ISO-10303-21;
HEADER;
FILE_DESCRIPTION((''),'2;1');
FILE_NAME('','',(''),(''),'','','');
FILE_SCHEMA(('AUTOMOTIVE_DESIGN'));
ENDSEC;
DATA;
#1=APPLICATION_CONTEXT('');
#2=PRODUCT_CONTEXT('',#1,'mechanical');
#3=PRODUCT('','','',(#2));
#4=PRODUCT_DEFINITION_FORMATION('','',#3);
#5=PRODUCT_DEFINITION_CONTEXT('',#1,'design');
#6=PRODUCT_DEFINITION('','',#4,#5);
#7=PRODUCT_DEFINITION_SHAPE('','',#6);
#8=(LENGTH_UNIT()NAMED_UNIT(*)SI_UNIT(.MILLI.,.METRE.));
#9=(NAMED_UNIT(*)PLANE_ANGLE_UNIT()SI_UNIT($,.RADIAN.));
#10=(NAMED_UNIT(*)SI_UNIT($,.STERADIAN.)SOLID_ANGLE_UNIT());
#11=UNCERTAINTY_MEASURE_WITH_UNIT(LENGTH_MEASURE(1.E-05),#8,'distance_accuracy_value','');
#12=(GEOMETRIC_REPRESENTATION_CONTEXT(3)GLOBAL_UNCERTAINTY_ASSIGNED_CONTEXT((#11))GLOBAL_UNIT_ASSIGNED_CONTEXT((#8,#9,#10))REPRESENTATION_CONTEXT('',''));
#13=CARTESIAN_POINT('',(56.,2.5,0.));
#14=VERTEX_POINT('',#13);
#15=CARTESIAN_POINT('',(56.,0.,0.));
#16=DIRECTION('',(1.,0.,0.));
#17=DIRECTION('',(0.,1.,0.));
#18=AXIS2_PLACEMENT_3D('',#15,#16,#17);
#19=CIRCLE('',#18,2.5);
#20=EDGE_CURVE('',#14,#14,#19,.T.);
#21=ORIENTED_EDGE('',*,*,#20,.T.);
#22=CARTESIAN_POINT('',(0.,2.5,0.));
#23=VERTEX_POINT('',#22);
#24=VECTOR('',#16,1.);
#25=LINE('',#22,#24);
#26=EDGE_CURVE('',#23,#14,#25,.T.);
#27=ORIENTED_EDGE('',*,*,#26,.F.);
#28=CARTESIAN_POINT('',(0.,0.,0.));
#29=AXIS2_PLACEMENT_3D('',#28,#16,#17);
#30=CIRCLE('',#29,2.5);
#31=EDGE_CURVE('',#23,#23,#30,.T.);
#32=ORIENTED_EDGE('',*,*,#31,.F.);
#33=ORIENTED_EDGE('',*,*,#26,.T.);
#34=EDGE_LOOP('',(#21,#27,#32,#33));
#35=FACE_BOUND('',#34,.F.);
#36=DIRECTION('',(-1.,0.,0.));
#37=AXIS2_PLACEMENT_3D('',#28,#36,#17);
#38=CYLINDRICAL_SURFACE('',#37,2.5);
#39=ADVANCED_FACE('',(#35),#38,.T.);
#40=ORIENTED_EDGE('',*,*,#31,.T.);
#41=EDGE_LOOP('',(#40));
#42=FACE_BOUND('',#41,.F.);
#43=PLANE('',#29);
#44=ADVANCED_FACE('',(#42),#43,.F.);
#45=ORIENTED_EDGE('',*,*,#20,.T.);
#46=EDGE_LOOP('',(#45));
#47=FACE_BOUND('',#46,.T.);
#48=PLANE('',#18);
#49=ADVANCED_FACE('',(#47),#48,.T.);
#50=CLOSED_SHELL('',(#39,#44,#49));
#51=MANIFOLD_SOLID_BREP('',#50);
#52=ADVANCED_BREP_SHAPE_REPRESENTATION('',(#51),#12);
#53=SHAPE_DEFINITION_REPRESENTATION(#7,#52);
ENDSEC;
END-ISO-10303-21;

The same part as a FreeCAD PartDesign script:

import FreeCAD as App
import Part
import Sketcher
Q = App.Units.Quantity

doc = App.newDocument("Part")
body = doc.addObject("PartDesign::Body", "Body")

# Sketch on YZ plane
sketch1 = body.newObject("Sketcher::SketchObject", "Sketch")
sketch1.AttachmentSupport = (doc.getObject("YZ_Plane"), [""])
sketch1.MapMode = "FlatFace"
sketch1.addGeometry(Part.Circle(App.Vector(0, 0, 0), App.Vector(0, 0, 1), 2.5), False)
sketch1.addConstraint([
    Sketcher.Constraint("Coincident", 0, 3, -1, 1),
    Sketcher.Constraint("Diameter", 0, Q("5 mm")),
])
pad1 = body.newObject("PartDesign::Pad", "Pad")
pad1.Profile = sketch1
pad1.Length = 56

doc.recompute()
